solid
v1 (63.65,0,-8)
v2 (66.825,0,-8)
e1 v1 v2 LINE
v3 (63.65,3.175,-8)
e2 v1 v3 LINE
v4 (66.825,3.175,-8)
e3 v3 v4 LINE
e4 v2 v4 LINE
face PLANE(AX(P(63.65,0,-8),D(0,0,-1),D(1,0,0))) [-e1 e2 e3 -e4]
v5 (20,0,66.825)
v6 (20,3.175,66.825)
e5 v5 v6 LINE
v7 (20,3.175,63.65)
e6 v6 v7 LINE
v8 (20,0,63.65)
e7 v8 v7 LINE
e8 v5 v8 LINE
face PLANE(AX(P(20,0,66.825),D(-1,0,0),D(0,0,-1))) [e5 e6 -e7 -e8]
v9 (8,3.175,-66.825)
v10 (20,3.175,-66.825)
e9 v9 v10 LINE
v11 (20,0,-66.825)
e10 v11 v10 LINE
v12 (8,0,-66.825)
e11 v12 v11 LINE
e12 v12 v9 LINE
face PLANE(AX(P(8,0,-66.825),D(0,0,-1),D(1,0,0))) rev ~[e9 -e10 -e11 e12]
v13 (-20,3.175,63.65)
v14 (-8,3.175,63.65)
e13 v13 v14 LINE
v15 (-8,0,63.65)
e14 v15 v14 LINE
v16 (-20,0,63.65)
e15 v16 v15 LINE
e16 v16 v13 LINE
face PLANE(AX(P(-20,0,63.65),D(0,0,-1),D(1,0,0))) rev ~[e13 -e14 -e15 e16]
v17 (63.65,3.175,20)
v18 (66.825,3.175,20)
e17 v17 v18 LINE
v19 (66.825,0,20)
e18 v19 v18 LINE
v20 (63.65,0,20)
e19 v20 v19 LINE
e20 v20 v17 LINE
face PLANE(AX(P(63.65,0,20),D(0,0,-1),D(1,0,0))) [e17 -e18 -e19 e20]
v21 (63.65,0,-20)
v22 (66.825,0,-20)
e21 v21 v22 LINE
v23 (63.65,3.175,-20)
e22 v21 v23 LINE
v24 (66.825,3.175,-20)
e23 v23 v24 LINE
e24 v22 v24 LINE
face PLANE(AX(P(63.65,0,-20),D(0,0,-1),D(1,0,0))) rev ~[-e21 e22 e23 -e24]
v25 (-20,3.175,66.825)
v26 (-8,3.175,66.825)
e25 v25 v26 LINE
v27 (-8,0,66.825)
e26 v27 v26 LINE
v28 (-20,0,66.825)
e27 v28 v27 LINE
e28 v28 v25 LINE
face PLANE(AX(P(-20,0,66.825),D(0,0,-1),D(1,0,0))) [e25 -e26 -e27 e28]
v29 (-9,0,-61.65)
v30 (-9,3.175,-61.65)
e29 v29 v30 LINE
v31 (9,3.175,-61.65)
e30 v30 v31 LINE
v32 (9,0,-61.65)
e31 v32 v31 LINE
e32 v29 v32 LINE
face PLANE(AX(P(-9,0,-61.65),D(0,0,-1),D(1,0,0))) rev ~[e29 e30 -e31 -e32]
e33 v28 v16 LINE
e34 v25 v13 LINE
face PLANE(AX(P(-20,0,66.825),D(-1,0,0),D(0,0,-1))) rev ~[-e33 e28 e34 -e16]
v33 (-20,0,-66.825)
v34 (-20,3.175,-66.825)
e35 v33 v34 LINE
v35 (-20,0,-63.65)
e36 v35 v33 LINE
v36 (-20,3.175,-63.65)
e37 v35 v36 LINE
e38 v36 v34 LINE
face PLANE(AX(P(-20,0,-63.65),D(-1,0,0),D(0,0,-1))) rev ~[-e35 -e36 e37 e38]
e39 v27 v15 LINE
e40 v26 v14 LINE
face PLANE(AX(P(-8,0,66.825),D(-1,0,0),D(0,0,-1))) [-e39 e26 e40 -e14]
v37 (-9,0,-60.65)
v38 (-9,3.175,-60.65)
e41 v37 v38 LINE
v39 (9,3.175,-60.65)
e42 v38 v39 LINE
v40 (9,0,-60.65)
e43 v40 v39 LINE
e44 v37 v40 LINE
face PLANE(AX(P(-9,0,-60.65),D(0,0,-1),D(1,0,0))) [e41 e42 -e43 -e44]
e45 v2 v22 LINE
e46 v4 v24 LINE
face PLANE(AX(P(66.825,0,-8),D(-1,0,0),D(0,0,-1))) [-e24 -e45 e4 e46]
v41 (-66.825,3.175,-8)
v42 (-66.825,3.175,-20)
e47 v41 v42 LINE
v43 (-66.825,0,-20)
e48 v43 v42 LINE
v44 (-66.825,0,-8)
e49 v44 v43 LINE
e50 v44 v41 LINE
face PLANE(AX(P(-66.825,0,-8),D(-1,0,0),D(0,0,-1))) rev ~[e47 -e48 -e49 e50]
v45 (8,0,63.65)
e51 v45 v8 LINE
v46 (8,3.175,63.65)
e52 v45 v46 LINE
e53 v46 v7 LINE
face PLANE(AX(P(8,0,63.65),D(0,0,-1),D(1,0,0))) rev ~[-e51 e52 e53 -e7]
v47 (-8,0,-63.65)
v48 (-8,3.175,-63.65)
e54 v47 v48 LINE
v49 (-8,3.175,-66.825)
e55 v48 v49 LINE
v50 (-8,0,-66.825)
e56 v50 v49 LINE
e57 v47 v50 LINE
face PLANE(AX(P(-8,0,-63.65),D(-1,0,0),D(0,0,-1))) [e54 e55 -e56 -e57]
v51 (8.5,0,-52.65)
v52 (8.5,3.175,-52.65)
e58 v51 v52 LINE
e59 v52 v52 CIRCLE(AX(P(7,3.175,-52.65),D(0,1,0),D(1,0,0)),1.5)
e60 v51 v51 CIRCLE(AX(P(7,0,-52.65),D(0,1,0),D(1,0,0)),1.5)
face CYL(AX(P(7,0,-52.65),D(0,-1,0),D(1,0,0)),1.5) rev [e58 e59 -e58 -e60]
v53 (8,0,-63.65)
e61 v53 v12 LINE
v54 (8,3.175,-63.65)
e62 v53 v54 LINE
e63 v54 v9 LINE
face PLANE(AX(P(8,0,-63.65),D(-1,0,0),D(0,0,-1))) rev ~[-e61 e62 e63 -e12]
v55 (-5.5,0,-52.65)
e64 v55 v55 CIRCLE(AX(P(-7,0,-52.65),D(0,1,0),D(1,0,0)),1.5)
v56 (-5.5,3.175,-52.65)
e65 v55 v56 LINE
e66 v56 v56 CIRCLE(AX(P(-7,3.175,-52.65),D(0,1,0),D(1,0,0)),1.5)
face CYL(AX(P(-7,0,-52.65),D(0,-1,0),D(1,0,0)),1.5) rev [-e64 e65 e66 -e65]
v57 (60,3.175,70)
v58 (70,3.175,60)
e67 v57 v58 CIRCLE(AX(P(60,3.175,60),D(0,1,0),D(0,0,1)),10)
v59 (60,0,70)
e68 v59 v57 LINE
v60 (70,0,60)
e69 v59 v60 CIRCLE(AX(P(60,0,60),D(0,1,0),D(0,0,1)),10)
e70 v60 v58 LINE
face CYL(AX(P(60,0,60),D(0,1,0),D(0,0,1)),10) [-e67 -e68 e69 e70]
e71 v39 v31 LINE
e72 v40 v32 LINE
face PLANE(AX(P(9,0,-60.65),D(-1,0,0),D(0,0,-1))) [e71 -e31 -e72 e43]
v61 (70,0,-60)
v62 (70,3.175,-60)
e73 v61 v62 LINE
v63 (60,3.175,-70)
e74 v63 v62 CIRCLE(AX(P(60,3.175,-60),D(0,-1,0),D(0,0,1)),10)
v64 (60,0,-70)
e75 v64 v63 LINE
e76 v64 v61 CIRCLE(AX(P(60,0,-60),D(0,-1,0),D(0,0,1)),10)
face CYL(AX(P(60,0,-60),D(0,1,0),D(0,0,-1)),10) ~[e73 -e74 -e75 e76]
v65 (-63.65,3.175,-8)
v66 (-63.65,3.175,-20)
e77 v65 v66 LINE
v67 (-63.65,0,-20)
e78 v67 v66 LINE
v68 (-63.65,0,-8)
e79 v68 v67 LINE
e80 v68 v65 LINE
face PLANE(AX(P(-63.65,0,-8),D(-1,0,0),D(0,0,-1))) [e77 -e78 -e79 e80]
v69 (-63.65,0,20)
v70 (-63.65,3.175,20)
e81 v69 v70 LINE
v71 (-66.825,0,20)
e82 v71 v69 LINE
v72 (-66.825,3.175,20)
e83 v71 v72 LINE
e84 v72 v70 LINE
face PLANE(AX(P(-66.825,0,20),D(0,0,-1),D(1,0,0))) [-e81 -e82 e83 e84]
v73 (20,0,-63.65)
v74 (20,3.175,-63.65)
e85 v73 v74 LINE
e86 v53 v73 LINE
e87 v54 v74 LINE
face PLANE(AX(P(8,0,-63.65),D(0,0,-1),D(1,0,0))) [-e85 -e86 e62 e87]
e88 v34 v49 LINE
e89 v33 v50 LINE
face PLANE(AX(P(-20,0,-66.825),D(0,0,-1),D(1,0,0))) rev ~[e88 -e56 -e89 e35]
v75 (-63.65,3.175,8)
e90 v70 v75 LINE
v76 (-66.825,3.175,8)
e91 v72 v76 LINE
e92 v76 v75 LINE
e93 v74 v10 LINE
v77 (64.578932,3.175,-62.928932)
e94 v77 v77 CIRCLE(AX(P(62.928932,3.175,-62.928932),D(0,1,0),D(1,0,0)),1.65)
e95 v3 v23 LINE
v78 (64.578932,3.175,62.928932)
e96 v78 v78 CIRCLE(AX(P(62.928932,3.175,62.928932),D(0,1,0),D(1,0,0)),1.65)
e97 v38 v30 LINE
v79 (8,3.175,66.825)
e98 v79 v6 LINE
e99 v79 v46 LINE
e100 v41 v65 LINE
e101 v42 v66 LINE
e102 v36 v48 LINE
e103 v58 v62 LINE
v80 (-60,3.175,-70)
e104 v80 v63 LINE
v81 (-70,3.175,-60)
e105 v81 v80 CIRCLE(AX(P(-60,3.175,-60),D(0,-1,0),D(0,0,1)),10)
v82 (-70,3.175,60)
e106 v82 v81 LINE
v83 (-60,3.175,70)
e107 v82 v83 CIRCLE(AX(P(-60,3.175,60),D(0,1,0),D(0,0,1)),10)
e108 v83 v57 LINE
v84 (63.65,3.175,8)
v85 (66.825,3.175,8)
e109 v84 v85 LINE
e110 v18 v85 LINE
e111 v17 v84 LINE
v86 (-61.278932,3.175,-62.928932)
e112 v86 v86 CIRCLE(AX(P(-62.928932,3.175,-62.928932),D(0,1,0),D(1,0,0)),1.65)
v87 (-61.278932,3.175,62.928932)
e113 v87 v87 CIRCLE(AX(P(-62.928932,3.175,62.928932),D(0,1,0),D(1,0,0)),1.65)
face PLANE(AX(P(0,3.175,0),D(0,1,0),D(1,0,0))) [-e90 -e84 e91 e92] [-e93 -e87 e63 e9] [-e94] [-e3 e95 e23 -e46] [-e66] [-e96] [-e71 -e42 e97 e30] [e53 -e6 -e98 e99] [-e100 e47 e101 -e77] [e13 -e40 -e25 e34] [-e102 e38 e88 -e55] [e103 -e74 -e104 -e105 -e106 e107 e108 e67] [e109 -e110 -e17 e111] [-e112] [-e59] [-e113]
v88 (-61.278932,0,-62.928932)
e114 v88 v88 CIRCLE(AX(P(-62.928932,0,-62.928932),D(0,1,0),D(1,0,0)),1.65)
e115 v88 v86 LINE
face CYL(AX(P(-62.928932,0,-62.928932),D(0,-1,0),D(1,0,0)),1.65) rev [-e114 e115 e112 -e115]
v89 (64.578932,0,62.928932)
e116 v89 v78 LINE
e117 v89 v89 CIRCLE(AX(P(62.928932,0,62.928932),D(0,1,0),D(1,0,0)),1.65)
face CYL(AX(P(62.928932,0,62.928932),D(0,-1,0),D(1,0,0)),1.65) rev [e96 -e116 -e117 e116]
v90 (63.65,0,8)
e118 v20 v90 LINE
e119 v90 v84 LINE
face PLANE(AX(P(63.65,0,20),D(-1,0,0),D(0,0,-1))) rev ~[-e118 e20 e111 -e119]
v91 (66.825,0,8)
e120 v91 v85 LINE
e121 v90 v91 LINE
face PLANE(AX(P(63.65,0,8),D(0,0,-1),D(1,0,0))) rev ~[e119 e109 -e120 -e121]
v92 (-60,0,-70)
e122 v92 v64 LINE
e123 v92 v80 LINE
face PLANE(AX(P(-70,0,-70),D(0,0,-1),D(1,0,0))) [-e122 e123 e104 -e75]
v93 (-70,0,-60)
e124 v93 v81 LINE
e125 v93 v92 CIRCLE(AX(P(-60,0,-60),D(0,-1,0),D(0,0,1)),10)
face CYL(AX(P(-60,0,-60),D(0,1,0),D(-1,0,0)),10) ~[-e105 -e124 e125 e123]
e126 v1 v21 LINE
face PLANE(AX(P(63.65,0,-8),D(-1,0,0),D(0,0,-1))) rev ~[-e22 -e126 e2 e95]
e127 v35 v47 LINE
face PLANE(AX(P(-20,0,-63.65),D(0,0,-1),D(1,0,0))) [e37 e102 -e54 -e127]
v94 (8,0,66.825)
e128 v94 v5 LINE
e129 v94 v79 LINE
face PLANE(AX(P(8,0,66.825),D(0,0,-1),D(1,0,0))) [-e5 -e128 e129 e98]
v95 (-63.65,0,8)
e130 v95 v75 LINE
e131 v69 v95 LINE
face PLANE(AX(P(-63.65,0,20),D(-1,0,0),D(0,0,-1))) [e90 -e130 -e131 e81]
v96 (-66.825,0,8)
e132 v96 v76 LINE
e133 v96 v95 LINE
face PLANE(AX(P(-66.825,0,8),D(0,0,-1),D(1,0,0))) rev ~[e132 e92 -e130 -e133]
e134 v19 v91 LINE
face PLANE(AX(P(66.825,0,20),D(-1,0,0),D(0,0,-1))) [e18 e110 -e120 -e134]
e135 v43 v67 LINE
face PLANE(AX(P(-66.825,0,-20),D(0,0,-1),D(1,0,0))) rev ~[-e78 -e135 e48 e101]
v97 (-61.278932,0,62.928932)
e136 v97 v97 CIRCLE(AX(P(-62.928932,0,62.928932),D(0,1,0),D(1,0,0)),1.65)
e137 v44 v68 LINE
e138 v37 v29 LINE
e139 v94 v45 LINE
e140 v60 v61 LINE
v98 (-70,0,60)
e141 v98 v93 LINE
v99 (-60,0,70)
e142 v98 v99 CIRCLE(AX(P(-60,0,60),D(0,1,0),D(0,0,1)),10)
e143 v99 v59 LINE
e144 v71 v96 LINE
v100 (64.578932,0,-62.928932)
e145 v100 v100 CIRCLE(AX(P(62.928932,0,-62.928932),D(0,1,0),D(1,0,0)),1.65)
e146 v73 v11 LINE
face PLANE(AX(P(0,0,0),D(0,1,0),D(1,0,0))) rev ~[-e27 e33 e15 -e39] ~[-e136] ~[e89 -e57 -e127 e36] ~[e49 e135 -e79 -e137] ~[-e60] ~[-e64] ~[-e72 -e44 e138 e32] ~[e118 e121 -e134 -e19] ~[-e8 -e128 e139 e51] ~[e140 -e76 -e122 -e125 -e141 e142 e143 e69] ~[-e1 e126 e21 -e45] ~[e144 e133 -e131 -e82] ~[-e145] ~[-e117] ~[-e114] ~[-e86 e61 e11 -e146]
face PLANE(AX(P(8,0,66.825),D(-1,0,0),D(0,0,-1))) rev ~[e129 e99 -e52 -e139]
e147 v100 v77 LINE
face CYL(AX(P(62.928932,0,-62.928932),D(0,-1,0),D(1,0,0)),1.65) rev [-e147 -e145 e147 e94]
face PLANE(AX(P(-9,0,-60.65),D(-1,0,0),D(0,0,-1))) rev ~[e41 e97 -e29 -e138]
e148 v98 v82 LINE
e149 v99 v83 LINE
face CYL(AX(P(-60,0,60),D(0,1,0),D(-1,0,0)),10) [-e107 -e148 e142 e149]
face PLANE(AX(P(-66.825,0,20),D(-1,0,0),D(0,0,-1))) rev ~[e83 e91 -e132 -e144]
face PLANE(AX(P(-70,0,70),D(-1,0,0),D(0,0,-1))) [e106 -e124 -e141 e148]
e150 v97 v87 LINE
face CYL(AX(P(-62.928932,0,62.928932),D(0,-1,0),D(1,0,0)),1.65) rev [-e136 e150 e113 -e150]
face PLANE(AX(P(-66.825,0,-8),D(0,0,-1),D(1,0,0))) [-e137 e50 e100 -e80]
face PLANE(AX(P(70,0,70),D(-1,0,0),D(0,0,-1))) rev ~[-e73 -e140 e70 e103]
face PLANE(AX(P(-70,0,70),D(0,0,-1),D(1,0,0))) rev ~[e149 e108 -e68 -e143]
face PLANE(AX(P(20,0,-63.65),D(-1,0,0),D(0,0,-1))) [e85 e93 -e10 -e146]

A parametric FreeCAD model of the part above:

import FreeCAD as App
import Part
import Sketcher
from FreeCAD import Vector


def edges_at(feature, points):
    """Names of the edges that pass closest to the given points."""
    edges = feature.Shape.Edges
    near = lambda p: min(range(len(edges)), key=lambda i: edges[i].distToShape(Part.Vertex(*p))[0])
    return sorted({f"Edge{near(p) + 1}" for p in points})

doc = App.newDocument("Part")
body = doc.addObject("PartDesign::Body", "Body")

# Sketch on XZ plane
sketch1 = body.newObject("Sketcher::SketchObject", "Sketch")
sketch1.AttachmentSupport = (doc.getObject("XZ_Plane"), [""])
sketch1.MapMode = "FlatFace"
sketch1.addGeometry([
    Part.LineSegment(Vector(-70, -70, 0), Vector(-70, 70, 0)),  # 0
    Part.LineSegment(Vector(-70, 70, 0), Vector(70, 70, 0)),  # 1
    Part.LineSegment(Vector(70, 70, 0), Vector(70, -70, 0)),  # 2
    Part.LineSegment(Vector(70, -70, 0), Vector(-70, -70, 0)),  # 3
    Part.Circle(Vector(-62.928932, 62.928932, 0), Vector(0, 0, 1), 1.65),  # 4
    Part.LineSegment(Vector(-8, 66.825, 0), Vector(-20, 66.825, 0)),  # 5
    Part.LineSegment(Vector(-20, 66.825, 0), Vector(-20, 63.65, 0)),  # 6
    Part.LineSegment(Vector(-20, 63.65, 0), Vector(-8, 63.65, 0)),  # 7
    Part.LineSegment(Vector(-8, 63.65, 0), Vector(-8, 66.825, 0)),  # 8
    Part.LineSegment(Vector(-63.65, 20, 0), Vector(-66.825, 20, 0)),  # 9
    Part.LineSegment(Vector(-66.825, 20, 0), Vector(-66.825, 8, 0)),  # 10
    Part.LineSegment(Vector(-66.825, 8, 0), Vector(-63.65, 8, 0)),  # 11
    Part.LineSegment(Vector(-63.65, 8, 0), Vector(-63.65, 20, 0)),  # 12
    Part.LineSegment(Vector(20, 66.825, 0), Vector(8, 66.825, 0)),  # 13
    Part.LineSegment(Vector(8, 66.825, 0), Vector(8, 63.65, 0)),  # 14
    Part.LineSegment(Vector(8, 63.65, 0), Vector(20, 63.65, 0)),  # 15
    Part.LineSegment(Vector(20, 63.65, 0), Vector(20, 66.825, 0)),  # 16
    Part.Circle(Vector(62.928932, 62.928932, 0), Vector(0, 0, 1), 1.65),  # 17
    Part.LineSegment(Vector(66.825, 20, 0), Vector(63.65, 20, 0)),  # 18
    Part.LineSegment(Vector(63.65, 20, 0), Vector(63.65, 8, 0)),  # 19
    Part.LineSegment(Vector(63.65, 8, 0), Vector(66.825, 8, 0)),  # 20
    Part.LineSegment(Vector(66.825, 8, 0), Vector(66.825, 20, 0)),  # 21
    Part.LineSegment(Vector(-63.65, -8, 0), Vector(-66.825, -8, 0)),  # 22
    Part.LineSegment(Vector(-66.825, -8, 0), Vector(-66.825, -20, 0)),  # 23
    Part.LineSegment(Vector(-66.825, -20, 0), Vector(-63.65, -20, 0)),  # 24
    Part.LineSegment(Vector(-63.65, -20, 0), Vector(-63.65, -8, 0)),  # 25
    Part.Circle(Vector(-62.928932, -62.928932, 0), Vector(0, 0, 1), 1.65),  # 26
    Part.Circle(Vector(-7, -52.65, 0), Vector(0, 0, 1), 1.5),  # 27
    Part.LineSegment(Vector(-8, -63.65, 0), Vector(-20, -63.65, 0)),  # 28
    Part.LineSegment(Vector(-20, -63.65, 0), Vector(-20, -66.825, 0)),  # 29
    Part.LineSegment(Vector(-20, -66.825, 0), Vector(-8, -66.825, 0)),  # 30
    Part.LineSegment(Vector(-8, -66.825, 0), Vector(-8, -63.65, 0)),  # 31
    Part.LineSegment(Vector(66.825, -8, 0), Vector(63.65, -8, 0)),  # 32
    Part.LineSegment(Vector(63.65, -8, 0), Vector(63.65, -20, 0)),  # 33
    Part.LineSegment(Vector(63.65, -20, 0), Vector(66.825, -20, 0)),  # 34
    Part.LineSegment(Vector(66.825, -20, 0), Vector(66.825, -8, 0)),  # 35
    Part.Circle(Vector(7, -52.65, 0), Vector(0, 0, 1), 1.5),  # 36
    Part.LineSegment(Vector(9, -60.65, 0), Vector(-9, -60.65, 0)),  # 37
    Part.LineSegment(Vector(-9, -60.65, 0), Vector(-9, -61.65, 0)),  # 38
    Part.LineSegment(Vector(-9, -61.65, 0), Vector(9, -61.65, 0)),  # 39
    Part.LineSegment(Vector(9, -61.65, 0), Vector(9, -60.65, 0)),  # 40
    Part.LineSegment(Vector(20, -63.65, 0), Vector(8, -63.65, 0)),  # 41
    Part.LineSegment(Vector(8, -63.65, 0), Vector(8, -66.825, 0)),  # 42
    Part.LineSegment(Vector(8, -66.825, 0), Vector(20, -66.825, 0)),  # 43
    Part.LineSegment(Vector(20, -66.825, 0), Vector(20, -63.65, 0)),  # 44
    Part.Circle(Vector(62.928932, -62.928932, 0), Vector(0, 0, 1), 1.65),  # 45
], False)
sketch1.addConstraint([
    Sketcher.Constraint("Coincident", 0, 2, 1, 1),
    Sketcher.Constraint("Coincident", 1, 2, 2, 1),
    Sketcher.Constraint("Coincident", 2, 2, 3, 1),
    Sketcher.Constraint("Coincident", 3, 2, 0, 1),
    Sketcher.Constraint("Coincident", 5, 2, 6, 1),
    Sketcher.Constraint("Coincident", 6, 2, 7, 1),
    Sketcher.Constraint("Coincident", 7, 2, 8, 1),
    Sketcher.Constraint("Coincident", 8, 2, 5, 1),
    Sketcher.Constraint("Coincident", 9, 2, 10, 1),
    Sketcher.Constraint("Coincident", 10, 2, 11, 1),
    Sketcher.Constraint("Coincident", 11, 2, 12, 1),
    Sketcher.Constraint("Coincident", 12, 2, 9, 1),
    Sketcher.Constraint("Coincident", 13, 2, 14, 1),
    Sketcher.Constraint("Coincident", 14, 2, 15, 1),
    Sketcher.Constraint("Coincident", 15, 2, 16, 1),
    Sketcher.Constraint("Coincident", 16, 2, 13, 1),
    Sketcher.Constraint("Coincident", 18, 2, 19, 1),
    Sketcher.Constraint("Coincident", 19, 2, 20, 1),
    Sketcher.Constraint("Coincident", 20, 2, 21, 1),
    Sketcher.Constraint("Coincident", 21, 2, 18, 1),
    Sketcher.Constraint("Coincident", 22, 2, 23, 1),
    Sketcher.Constraint("Coincident", 23, 2, 24, 1),
    Sketcher.Constraint("Coincident", 24, 2, 25, 1),
    Sketcher.Constraint("Coincident", 25, 2, 22, 1),
    Sketcher.Constraint("Coincident", 28, 2, 29, 1),
    Sketcher.Constraint("Coincident", 29, 2, 30, 1),
    Sketcher.Constraint("Coincident", 30, 2, 31, 1),
    Sketcher.Constraint("Coincident", 31, 2, 28, 1),
    Sketcher.Constraint("Coincident", 32, 2, 33, 1),
    Sketcher.Constraint("Coincident", 33, 2, 34, 1),
    Sketcher.Constraint("Coincident", 34, 2, 35, 1),
    Sketcher.Constraint("Coincident", 35, 2, 32, 1),
    Sketcher.Constraint("Coincident", 37, 2, 38, 1),
    Sketcher.Constraint("Coincident", 38, 2, 39, 1),
    Sketcher.Constraint("Coincident", 39, 2, 40, 1),
    Sketcher.Constraint("Coincident", 40, 2, 37, 1),
    Sketcher.Constraint("Coincident", 41, 2, 42, 1),
    Sketcher.Constraint("Coincident", 42, 2, 43, 1),
    Sketcher.Constraint("Coincident", 43, 2, 44, 1),
    Sketcher.Constraint("Coincident", 44, 2, 41, 1),
    Sketcher.Constraint("Vertical", 0),
    Sketcher.Constraint("Horizontal", 1),
    Sketcher.Constraint("Vertical", 2),
    Sketcher.Constraint("Horizontal", 3),
    Sketcher.Constraint("Horizontal", 5),
    Sketcher.Constraint("Vertical", 6),
    Sketcher.Constraint("Horizontal", 7),
    Sketcher.Constraint("Vertical", 8),
    Sketcher.Constraint("Horizontal", 9),
    Sketcher.Constraint("Vertical", 10),
    Sketcher.Constraint("Horizontal", 11),
    Sketcher.Constraint("Vertical", 12),
    Sketcher.Constraint("Horizontal", 13),
    Sketcher.Constraint("Vertical", 14),
    Sketcher.Constraint("Horizontal", 15),
    Sketcher.Constraint("Vertical", 16),
    Sketcher.Constraint("Horizontal", 18),
    Sketcher.Constraint("Vertical", 19),
    Sketcher.Constraint("Horizontal", 20),
    Sketcher.Constraint("Vertical", 21),
    Sketcher.Constraint("Horizontal", 22),
    Sketcher.Constraint("Vertical", 23),
    Sketcher.Constraint("Horizontal", 24),
    Sketcher.Constraint("Vertical", 25),
    Sketcher.Constraint("Horizontal", 28),
    Sketcher.Constraint("Vertical", 29),
    Sketcher.Constraint("Horizontal", 30),
    Sketcher.Constraint("Vertical", 31),
    Sketcher.Constraint("Horizontal", 32),
    Sketcher.Constraint("Vertical", 33),
    Sketcher.Constraint("Horizontal", 34),
    Sketcher.Constraint("Vertical", 35),
    Sketcher.Constraint("Horizontal", 37),
    Sketcher.Constraint("Vertical", 38),
    Sketcher.Constraint("Horizontal", 39),
    Sketcher.Constraint("Vertical", 40),
    Sketcher.Constraint("Horizontal", 41),
    Sketcher.Constraint("Vertical", 42),
    Sketcher.Constraint("Horizontal", 43),
    Sketcher.Constraint("Vertical", 44),
    Sketcher.Constraint("Equal", 4, 17),
    Sketcher.Constraint("Equal", 17, 26),
    Sketcher.Constraint("Equal", 27, 36),
    Sketcher.Constraint("Equal", 26, 45),
    Sketcher.Constraint("Symmetric", 17, 3, 26, 3, -1, 1),
    Sketcher.Constraint("Symmetric", 4, 3, 45, 3, -1, 1),
    Sketcher.Constraint("Symmetric", 0, 2, 2, 2, -1, 1),
    Sketcher.Constraint("Symmetric", 20, 2, 22, 2, -1, 1),
    Sketcher.Constraint("Symmetric", 18, 2, 24, 2, -1, 1),
    Sketcher.Constraint("Symmetric", 15, 2, 28, 2, -1, 1),
    Sketcher.Constraint("Symmetric", 13, 2, 30, 2, -1, 1),
    Sketcher.Constraint("Symmetric", 11, 2, 32, 2, -1, 1),
    Sketcher.Constraint("Symmetric", 9, 2, 34, 2, -1, 1),
    Sketcher.Constraint("Symmetric", 7, 2, 41, 2, -1, 1),
    Sketcher.Constraint("Symmetric", 5, 2, 43, 2, -1, 1),
    Sketcher.Constraint("Symmetric", 4, 3, 17, 3, -2),
    Sketcher.Constraint("Symmetric", 27, 3, 36, 3, -2),
    Sketcher.Constraint("Symmetric", 8, 2, 13, 2, -2),
    Sketcher.Constraint("Symmetric", 6, 2, 15, 2, -2),
    Sketcher.Constraint("Symmetric", 12, 2, 18, 2, -2),
    Sketcher.Constraint("Symmetric", 10, 2, 20, 2, -2),
    Sketcher.Constraint("Equal", 3, 0),
    Sketcher.Constraint("Equal", 34, 6),
    Sketcher.Constraint("Equal", 43, 10),
    Sketcher.Constraint("Diameter", 27, 3.0),
    Sketcher.Constraint("Diameter", 4, 3.3),
    Sketcher.Constraint("DistanceX", 1, 1, 1, 2, 140.0),
    Sketcher.Constraint("DistanceX", 5, 2, 5, 1, 12.0),
    Sketcher.Constraint("DistanceX", 37, 2, 37, 1, 18.0),
    Sketcher.Constraint("DistanceY", 38, 2, 38, 1, 1.0),
    Sketcher.Constraint("DistanceX", 27, 3, -1, 1, 7.0),
    Sketcher.Constraint("DistanceX", 5, 2, -1, 1, 20.0),
    Sketcher.Constraint("DistanceY", -1, 1, 9, 2, 20.0),
    Sketcher.Constraint("DistanceX", 37, 2, -1, 1, 9.0),
    Sketcher.Constraint("DistanceY", 28, 2, 27, 3, 11.0),
    Sketcher.Constraint("DistanceY", 31, 2, 37, 2, 3.0),
    Sketcher.Constraint("DistanceX", 9, 2, 9, 1, 3.175),
    Sketcher.Constraint("DistanceY", 27, 3, -1, 1, 52.65),
    Sketcher.Constraint("DistanceX", 11, 2, -1, 1, 63.65),
    Sketcher.Constraint("DistanceX", 4, 3, -1, 1, 62.928932),
    Sketcher.Constraint("DistanceY", -1, 1, 4, 3, 62.928932),
])
pad1 = body.newObject("PartDesign::Pad", "Pad")
pad1.Profile = sketch1
pad1.Length = 3.175
pad1.Reversed = True
doc.recompute()

fillet = body.newObject("PartDesign::Fillet", "Fillet")
fillet.Base = (pad1, edges_at(pad1, [
    (70, 1.587, 70),
    (-70, 1.587, 70),
    (-70, 1.587, -70),
    (70, 1.587, -70),
]))
fillet.Radius = 10

doc.recompute()
